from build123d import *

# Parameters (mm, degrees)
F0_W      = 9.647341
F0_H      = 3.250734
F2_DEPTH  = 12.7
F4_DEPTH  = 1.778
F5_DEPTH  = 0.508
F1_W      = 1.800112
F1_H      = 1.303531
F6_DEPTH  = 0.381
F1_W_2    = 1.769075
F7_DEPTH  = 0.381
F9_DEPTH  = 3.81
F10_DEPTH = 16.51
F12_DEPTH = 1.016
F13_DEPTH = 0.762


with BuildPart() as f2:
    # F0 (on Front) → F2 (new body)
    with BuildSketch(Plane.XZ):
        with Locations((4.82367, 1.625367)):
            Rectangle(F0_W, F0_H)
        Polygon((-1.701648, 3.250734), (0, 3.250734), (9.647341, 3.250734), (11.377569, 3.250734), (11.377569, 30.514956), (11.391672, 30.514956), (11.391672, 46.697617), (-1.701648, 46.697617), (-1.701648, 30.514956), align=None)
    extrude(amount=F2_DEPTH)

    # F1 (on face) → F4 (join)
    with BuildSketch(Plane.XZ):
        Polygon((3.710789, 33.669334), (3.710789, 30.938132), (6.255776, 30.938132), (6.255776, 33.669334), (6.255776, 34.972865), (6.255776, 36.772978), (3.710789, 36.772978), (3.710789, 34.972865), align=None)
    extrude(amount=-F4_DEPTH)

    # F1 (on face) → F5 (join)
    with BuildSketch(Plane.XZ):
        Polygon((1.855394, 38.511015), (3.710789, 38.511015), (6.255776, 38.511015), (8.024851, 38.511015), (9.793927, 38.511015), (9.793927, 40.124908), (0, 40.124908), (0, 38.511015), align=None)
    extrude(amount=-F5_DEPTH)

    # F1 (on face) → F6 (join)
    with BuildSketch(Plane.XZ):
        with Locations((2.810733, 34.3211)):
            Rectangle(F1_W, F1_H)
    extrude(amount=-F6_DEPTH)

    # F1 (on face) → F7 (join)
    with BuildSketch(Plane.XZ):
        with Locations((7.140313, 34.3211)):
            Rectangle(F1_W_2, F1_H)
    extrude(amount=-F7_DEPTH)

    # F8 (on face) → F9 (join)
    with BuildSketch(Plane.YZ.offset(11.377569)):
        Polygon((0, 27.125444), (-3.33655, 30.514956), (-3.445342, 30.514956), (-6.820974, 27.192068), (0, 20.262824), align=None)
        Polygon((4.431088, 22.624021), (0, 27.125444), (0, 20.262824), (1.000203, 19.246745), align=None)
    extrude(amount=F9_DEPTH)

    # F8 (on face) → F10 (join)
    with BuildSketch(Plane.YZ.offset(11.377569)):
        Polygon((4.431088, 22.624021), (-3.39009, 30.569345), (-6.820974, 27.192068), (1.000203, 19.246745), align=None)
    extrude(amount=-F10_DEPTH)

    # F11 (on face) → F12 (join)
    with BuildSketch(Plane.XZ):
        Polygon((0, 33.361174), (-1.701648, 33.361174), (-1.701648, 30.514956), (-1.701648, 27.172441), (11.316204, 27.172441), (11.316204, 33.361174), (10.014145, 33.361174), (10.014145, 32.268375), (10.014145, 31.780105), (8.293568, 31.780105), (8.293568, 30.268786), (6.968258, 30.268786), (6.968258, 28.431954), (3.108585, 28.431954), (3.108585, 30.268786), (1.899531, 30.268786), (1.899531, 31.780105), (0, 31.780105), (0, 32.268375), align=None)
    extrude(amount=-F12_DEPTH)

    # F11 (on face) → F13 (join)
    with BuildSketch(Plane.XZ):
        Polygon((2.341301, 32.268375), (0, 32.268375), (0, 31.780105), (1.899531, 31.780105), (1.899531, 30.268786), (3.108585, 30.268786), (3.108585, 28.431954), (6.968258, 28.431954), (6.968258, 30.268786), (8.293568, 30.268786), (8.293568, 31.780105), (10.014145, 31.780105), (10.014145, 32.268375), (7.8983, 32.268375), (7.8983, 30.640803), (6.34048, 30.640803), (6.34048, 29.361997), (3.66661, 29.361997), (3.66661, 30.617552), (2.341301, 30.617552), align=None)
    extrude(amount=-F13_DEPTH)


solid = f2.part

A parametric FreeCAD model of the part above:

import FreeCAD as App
import Part
import Sketcher
Q = App.Units.Quantity


def add_polygon(sketch, points):
    """Adds a closed chain of lines whose ends are joined by coincident constraints."""
    first, n = sketch.GeometryCount, len(points)
    for a, b in zip(points, points[1:] + points[:1]):
        sketch.addGeometry(Part.LineSegment(App.Vector(*a, 0), App.Vector(*b, 0)), False)
    for i in range(n):
        sketch.addConstraint(Sketcher.Constraint("Coincident", first + i, 2, first + (i + 1) % n, 1))

doc = App.newDocument("Part")
body = doc.addObject("PartDesign::Body", "Body")

sketch1 = doc.addObject("Sketcher::SketchObject", "Sketch")
body.addObject(sketch1)
sketch1.AttachmentSupport = (doc.XZ_Plane, [""])
sketch1.MapMode = "FlatFace"
add_polygon(sketch1, [(0, 3.251), (0, 0), (9.647, 0), (9.647, 3.251), (11.378, 3.251), (11.378, 30.515), (11.392, 30.515), (11.392, 46.698), (-1.702, 46.698), (-1.702, 3.251)])
sketch1.addConstraint(Sketcher.Constraint("Vertical", 0))
sketch1.addConstraint(Sketcher.Constraint("Horizontal", 1))
sketch1.addConstraint(Sketcher.Constraint("Vertical", 2))
sketch1.addConstraint(Sketcher.Constraint("Horizontal", 3))
sketch1.addConstraint(Sketcher.Constraint("Vertical", 4))
sketch1.addConstraint(Sketcher.Constraint("Horizontal", 5))
sketch1.addConstraint(Sketcher.Constraint("Vertical", 6))
sketch1.addConstraint(Sketcher.Constraint("Horizontal", 7))
sketch1.addConstraint(Sketcher.Constraint("Vertical", 8))
sketch1.addConstraint(Sketcher.Constraint("Horizontal", 9))
sketch1.addConstraint(Sketcher.Constraint("Coincident", 0, 2, -1, 1))
sketch1.addConstraint(Sketcher.Constraint("Horizontal", 3, 2, 8, 2))
sketch1.addConstraint(Sketcher.Constraint("DistanceX", 1, 1, 1, 2, 9.647341))
sketch1.addConstraint(Sketcher.Constraint("DistanceX", 3, 1, 3, 2, 1.730228))
sketch1.addConstraint(Sketcher.Constraint("DistanceX", 7, 2, 7, 1, 13.09332))
sketch1.addConstraint(Sketcher.Constraint("DistanceY", 4, 1, 4, 2, 27.264222))
sketch1.addConstraint(Sketcher.Constraint("DistanceY", 6, 1, 6, 2, 16.182661))
sketch1.addConstraint(Sketcher.Constraint("DistanceX", 5, 1, 5, 2, 0.014103))
sketch1.addConstraint(Sketcher.Constraint("DistanceY", 0, 2, 0, 1, 3.250734))
pad1 = doc.addObject("PartDesign::Pad", "Pad")
body.addObject(pad1)
pad1.Profile = sketch1
pad1.Length = Q("0.5 in")

sketch2 = doc.addObject("Sketcher::SketchObject", "Sketch001")
body.addObject(sketch2)
sketch2.AttachmentSupport = (doc.XZ_Plane, [""])
sketch2.MapMode = "FlatFace"
add_polygon(sketch2, [(3.7, 30.9), (6.3, 30.9), (6.3, 36.8), (3.7, 36.8)])
sketch2.addConstraint(Sketcher.Constraint("Horizontal", 0))
sketch2.addConstraint(Sketcher.Constraint("Vertical", 1))
sketch2.addConstraint(Sketcher.Constraint("Horizontal", 2))
sketch2.addConstraint(Sketcher.Constraint("Vertical", 3))
sketch2.addConstraint(Sketcher.Constraint("DistanceX", 0, 1, 0, 2, 2.544987))
sketch2.addConstraint(Sketcher.Constraint("DistanceY", 1, 1, 1, 2, 5.834846))
sketch2.addConstraint(Sketcher.Constraint("DistanceY", -1, 1, 0, 2, 30.938132))
sketch2.addConstraint(Sketcher.Constraint("DistanceX", -1, 1, 2, 2, 3.710789))
pad2 = doc.addObject("PartDesign::Pad", "Pad001")
body.addObject(pad2)
pad2.Profile = sketch2
pad2.Length = Q("0.07 in")
pad2.Reversed = True

sketch3 = doc.addObject("Sketcher::SketchObject", "Sketch002")
body.addObject(sketch3)
sketch3.AttachmentSupport = (doc.XZ_Plane, [""])
sketch3.MapMode = "FlatFace"
add_polygon(sketch3, [(9.8, 38.5), (9.8, 40.1), (0, 40.1), (0, 38.5)])
sketch3.addConstraint(Sketcher.Constraint("Vertical", 0))
sketch3.addConstraint(Sketcher.Constraint("Horizontal", 1))
sketch3.addConstraint(Sketcher.Constraint("Vertical", 2))
sketch3.addConstraint(Sketcher.Constraint("Horizontal", 3))
sketch3.addConstraint(Sketcher.Constraint("PointOnObject", 1, 2, -2))
sketch3.addConstraint(Sketcher.Constraint("DistanceX", 1, 2, 1, 1, 9.793927))
sketch3.addConstraint(Sketcher.Constraint("DistanceY", 0, 1, 0, 2, 1.613893))
sketch3.addConstraint(Sketcher.Constraint("DistanceY", -1, 1, 0, 2, 40.124908))
pad3 = doc.addObject("PartDesign::Pad", "Pad002")
body.addObject(pad3)
pad3.Profile = sketch3
pad3.Length = Q("0.02 in")
pad3.Reversed = True

sketch4 = doc.addObject("Sketcher::SketchObject", "Sketch003")
body.addObject(sketch4)
sketch4.AttachmentSupport = (doc.XZ_Plane, [""])
sketch4.MapMode = "FlatFace"
add_polygon(sketch4, [(1.9, 35), (1.9, 33.7), (3.7, 33.7), (3.7, 35)])
sketch4.addConstraint(Sketcher.Constraint("Vertical", 0))
sketch4.addConstraint(Sketcher.Constraint("Horizontal", 1))
sketch4.addConstraint(Sketcher.Constraint("Vertical", 2))
sketch4.addConstraint(Sketcher.Constraint("Horizontal", 3))
sketch4.addConstraint(Sketcher.Constraint("DistanceY", 0, 2, 0, 1, 1.303531))
sketch4.addConstraint(Sketcher.Constraint("DistanceX", 1, 1, 1, 2, 1.800112))
sketch4.addConstraint(Sketcher.Constraint("DistanceX", -1, 1, 1, 2, 3.710789))
sketch4.addConstraint(Sketcher.Constraint("DistanceY", -1, 1, 0, 2, 33.669334))
pad4 = doc.addObject("PartDesign::Pad", "Pad003")
body.addObject(pad4)
pad4.Profile = sketch4
pad4.Length = Q("0.015 in")
pad4.Reversed = True

sketch5 = doc.addObject("Sketcher::SketchObject", "Sketch004")
body.addObject(sketch5)
sketch5.AttachmentSupport = (doc.XZ_Plane, [""])
sketch5.MapMode = "FlatFace"
add_polygon(sketch5, [(6.3, 35), (6.3, 33.7), (8, 33.7), (8, 35)])
sketch5.addConstraint(Sketcher.Constraint("Vertical", 0))
sketch5.addConstraint(Sketcher.Constraint("Horizontal", 1))
sketch5.addConstraint(Sketcher.Constraint("Vertical", 2))
sketch5.addConstraint(Sketcher.Constraint("Horizontal", 3))
sketch5.addConstraint(Sketcher.Constraint("DistanceY", 0, 2, 0, 1, 1.303531))
sketch5.addConstraint(Sketcher.Constraint("DistanceX", 1, 1, 1, 2, 1.769075))
sketch5.addConstraint(Sketcher.Constraint("DistanceX", -1, 1, 1, 2, 8.02485))
sketch5.addConstraint(Sketcher.Constraint("DistanceY", -1, 1, 0, 2, 33.669334))
pad5 = doc.addObject("PartDesign::Pad", "Pad004")
body.addObject(pad5)
pad5.Profile = sketch5
pad5.Length = Q("0.015 in")
pad5.Reversed = True

sketch6 = doc.addObject("Sketcher::SketchObject", "Sketch005")
body.addObject(sketch6)
sketch6.AttachmentSupport = (doc.YZ_Plane, [""])
sketch6.MapMode = "FlatFace"
sketch6.AttachmentOffset = App.Placement(App.Vector(0, 0, 11.377569), App.Rotation())
add_polygon(sketch6, [(0, 27.13), (-3.34, 30.51), (-3.45, 30.51), (-6.82, 27.19), (0, 20.26), (1, 19.25), (4.43, 22.62)])
sketch6.addConstraint(Sketcher.Constraint("Horizontal", 1))
sketch6.addConstraint(Sketcher.Constraint("PointOnObject", 3, 2, -2))
sketch6.addConstraint(Sketcher.Constraint("PointOnObject", 6, 2, -2))
sketch6.addConstraint(Sketcher.Constraint("Perpendicular", 0, 2))
sketch6.addConstraint(Sketcher.Constraint("Perpendicular", 2, 3))
sketch6.addConstraint(Sketcher.Constraint("Parallel", 3, 4))
sketch6.addConstraint(Sketcher.Constraint("Perpendicular", 4, 5))
sketch6.addConstraint(Sketcher.Constraint("Perpendicular", 5, 6))
sketch6.addConstraint(Sketcher.Constraint("Distance", 0, 4.756191))
sketch6.addConstraint(Sketcher.Constraint("Distance", 4, 1.425771))
sketch6.addConstraint(Sketcher.Constraint("DistanceX", 1, 2, 1, 1, 0.108792))
sketch6.addConstraint(Sketcher.Constraint("DistanceX", 0, 2, -1, 1, 3.33655))
sketch6.addConstraint(Sketcher.Constraint("DistanceY", -1, 1, 5, 2, 22.624021))
sketch6.addConstraint(Sketcher.Constraint("DistanceX", 2, 2, 1, 2, 3.375632))
pad6 = doc.addObject("PartDesign::Pad", "Pad005")
body.addObject(pad6)
pad6.Profile = sketch6
pad6.Length = Q("0.15 in")

sketch7 = doc.addObject("Sketcher::SketchObject", "Sketch006")
body.addObject(sketch7)
sketch7.AttachmentSupport = (doc.YZ_Plane, [""])
sketch7.MapMode = "FlatFace"
sketch7.AttachmentOffset = App.Placement(App.Vector(0, 0, 11.377569), App.Rotation())
add_polygon(sketch7, [(4.4, 22.6), (-3.4, 30.6), (-6.8, 27.2), (1, 19.2)])
sketch7.addConstraint(Sketcher.Constraint("Perpendicular", 0, 1))
sketch7.addConstraint(Sketcher.Constraint("Perpendicular", 1, 2))
sketch7.addConstraint(Sketcher.Constraint("Perpendicular", 2, 3))
sketch7.addConstraint(Sketcher.Constraint("DistanceY", 2, 2, 0, 2, 11.3226))
sketch7.addConstraint(Sketcher.Constraint("DistanceX", 0, 2, -1, 1, 3.39009))
sketch7.addConstraint(Sketcher.Constraint("DistanceY", -1, 1, 3, 2, 22.624021))
sketch7.addConstraint(Sketcher.Constraint("DistanceX", 1, 2, 3, 2, 11.252062))
sketch7.addConstraint(Sketcher.Constraint("Distance", 0, 11.148946))
pad7 = doc.addObject("PartDesign::Pad", "Pad006")
body.addObject(pad7)
pad7.Profile = sketch7
pad7.Length = Q("0.65 in")
pad7.Reversed = True

sketch8 = doc.addObject("Sketcher::SketchObject", "Sketch007")
body.addObject(sketch8)
sketch8.AttachmentSupport = (doc.XZ_Plane, [""])
sketch8.MapMode = "FlatFace"
add_polygon(sketch8, [(0, 33.4), (-1.7, 33.4), (-1.7, 27.2), (11.3, 27.2), (11.3, 33.4), (10, 33.4), (10, 31.8), (8.3, 31.8), (8.3, 30.3), (7, 30.3), (7, 28.4), (3.1, 28.4), (3.1, 30.3), (1.9, 30.3), (1.9, 31.8), (0, 31.8)])
sketch8.addConstraint(Sketcher.Constraint("Horizontal", 0))
sketch8.addConstraint(Sketcher.Constraint("Vertical", 1))
sketch8.addConstraint(Sketcher.Constraint("Horizontal", 2))
sketch8.addConstraint(Sketcher.Constraint("Vertical", 3))
sketch8.addConstraint(Sketcher.Constraint("Horizontal", 4))
sketch8.addConstraint(Sketcher.Constraint("Vertical", 5))
sketch8.addConstraint(Sketcher.Constraint("Horizontal", 6))
sketch8.addConstraint(Sketcher.Constraint("Vertical", 7))
sketch8.addConstraint(Sketcher.Constraint("Horizontal", 8))
sketch8.addConstraint(Sketcher.Constraint("Vertical", 9))
sketch8.addConstraint(Sketcher.Constraint("Horizontal", 10))
sketch8.addConstraint(Sketcher.Constraint("Vertical", 11))
sketch8.addConstraint(Sketcher.Constraint("Horizontal", 12))
sketch8.addConstraint(Sketcher.Constraint("Vertical", 13))
sketch8.addConstraint(Sketcher.Constraint("Horizontal", 14))
sketch8.addConstraint(Sketcher.Constraint("Vertical", 15))
sketch8.addConstraint(Sketcher.Constraint("PointOnObject", 14, 2, -2))
sketch8.addConstraint(Sketcher.Constraint("Horizontal", 0, 2, 3, 2))
sketch8.addConstraint(Sketcher.Constraint("Horizontal", 8, 2, 11, 2))
sketch8.addConstraint(Sketcher.Constraint("Horizontal", 6, 2, 13, 2))
sketch8.addConstraint(Sketcher.Constraint("DistanceX", 4, 2, 4, 1, 1.302059))
sketch8.addConstraint(Sketcher.Constraint("DistanceX", 8, 2, 8, 1, 1.32531))
sketch8.addConstraint(Sketcher.Constraint("DistanceX", 14, 2, 14, 1, 1.899531))
sketch8.addConstraint(Sketcher.Constraint("DistanceY", 5, 2, 5, 1, 1.581069))
sketch8.addConstraint(Sketcher.Constraint("DistanceY", 7, 2, 7, 1, 1.511319))
sketch8.addConstraint(Sketcher.Constraint("DistanceY", 9, 2, 9, 1, 1.836832))
sketch8.addConstraint(Sketcher.Constraint("DistanceX", 0, 2, 0, 1, 1.701648))
sketch8.addConstraint(Sketcher.Constraint("DistanceX", 2, 1, 2, 2, 13.017852))
sketch8.addConstraint(Sketcher.Constraint("DistanceX", 6, 2, 6, 1, 1.720577))
sketch8.addConstraint(Sketcher.Constraint("DistanceX", 10, 2, 10, 1, 3.859673))
sketch8.addConstraint(Sketcher.Constraint("DistanceY", 1, 2, 1, 1, 6.188733))
sketch8.addConstraint(Sketcher.Constraint("DistanceY", -1, 1, 1, 2, 27.172441))
pad8 = doc.addObject("PartDesign::Pad", "Pad007")
body.addObject(pad8)
pad8.Profile = sketch8
pad8.Length = Q("0.04 in")
pad8.Reversed = True

sketch9 = doc.addObject("Sketcher::SketchObject", "Sketch008")
body.addObject(sketch9)
sketch9.AttachmentSupport = (doc.XZ_Plane, [""])
sketch9.MapMode = "FlatFace"
add_polygon(sketch9, [(2.34, 32.27), (0, 32.27), (0, 31.78), (1.9, 31.78), (1.9, 30.27), (3.11, 30.27), (3.11, 28.43), (6.97, 28.43), (6.97, 30.27), (8.29, 30.27), (8.29, 31.78), (10.01, 31.78), (10.01, 32.27), (7.9, 32.27), (7.9, 30.64), (6.34, 30.64), (6.34, 29.36), (3.67, 29.36), (3.67, 30.62), (2.34, 30.62)])
sketch9.addConstraint(Sketcher.Constraint("Horizontal", 0))
sketch9.addConstraint(Sketcher.Constraint("Vertical", 1))
sketch9.addConstraint(Sketcher.Constraint("Horizontal", 2))
sketch9.addConstraint(Sketcher.Constraint("Vertical", 3))
sketch9.addConstraint(Sketcher.Constraint("Horizontal", 4))
sketch9.addConstraint(Sketcher.Constraint("Vertical", 5))
sketch9.addConstraint(Sketcher.Constraint("Horizontal", 6))
sketch9.addConstraint(Sketcher.Constraint("Vertical", 7))
sketch9.addConstraint(Sketcher.Constraint("Horizontal", 8))
sketch9.addConstraint(Sketcher.Constraint("Vertical", 9))
sketch9.addConstraint(Sketcher.Constraint("Horizontal", 10))
sketch9.addConstraint(Sketcher.Constraint("Vertical", 11))
sketch9.addConstraint(Sketcher.Constraint("Horizontal", 12))
sketch9.addConstraint(Sketcher.Constraint("Vertical", 13))
sketch9.addConstraint(Sketcher.Constraint("Horizontal", 14))
sketch9.addConstraint(Sketcher.Constraint("Vertical", 15))
sketch9.addConstraint(Sketcher.Constraint("Horizontal", 16))
sketch9.addConstraint(Sketcher.Constraint("Vertical", 17))
sketch9.addConstraint(Sketcher.Constraint("Horizontal", 18))
sketch9.addConstraint(Sketcher.Constraint("Vertical", 19))
sketch9.addConstraint(Sketcher.Constraint("PointOnObject", 0, 2, -2))
sketch9.addConstraint(Sketcher.Constraint("Horizontal", 4, 2, 7, 2))
sketch9.addConstraint(Sketcher.Constraint("Horizontal", 2, 2, 9, 2))
sketch9.addConstraint(Sketcher.Constraint("Horizontal", 0, 2, 11, 2))
sketch9.addConstraint(Sketcher.Constraint("Equal", 8, 18))
sketch9.addConstraint(Sketcher.Constraint("DistanceX", 0, 2, 0, 1, 2.341301))
sketch9.addConstraint(Sketcher.Constraint("DistanceX", 2, 1, 2, 2, 1.899531))
sketch9.addConstraint(Sketcher.Constraint("DistanceX", 8, 1, 8, 2, 1.32531))
sketch9.addConstraint(Sketcher.Constraint("DistanceX", 14, 2, 14, 1, 1.55782))
sketch9.addConstraint(Sketcher.Constraint("DistanceX", 16, 2, 16, 1, 2.67387))
sketch9.addConstraint(Sketcher.Constraint("DistanceY", 1, 2, 1, 1, 0.48827))
sketch9.addConstraint(Sketcher.Constraint("DistanceY", 3, 2, 3, 1, 1.511319))
sketch9.addConstraint(Sketcher.Constraint("DistanceY", 5, 2, 5, 1, 1.836832))
sketch9.addConstraint(Sketcher.Constraint("DistanceX", 4, 1, 4, 2, 1.209054))
sketch9.addConstraint(Sketcher.Constraint("DistanceX", 6, 1, 6, 2, 3.859673))
sketch9.addConstraint(Sketcher.Constraint("DistanceX", 10, 1, 10, 2, 1.720577))
sketch9.addConstraint(Sketcher.Constraint("DistanceY", 13, 2, 13, 1, 1.627572))
sketch9.addConstraint(Sketcher.Constraint("DistanceY", 15, 2, 15, 1, 1.278806))
sketch9.addConstraint(Sketcher.Constraint("DistanceY", 17, 1, 17, 2, 1.255555))
sketch9.addConstraint(Sketcher.Constraint("DistanceY", -1, 1, 17, 2, 30.617552))
pad9 = doc.addObject("PartDesign::Pad", "Pad008")
body.addObject(pad9)
pad9.Profile = sketch9
pad9.Length = Q("0.03 in")
pad9.Reversed = True

doc.recompute()
